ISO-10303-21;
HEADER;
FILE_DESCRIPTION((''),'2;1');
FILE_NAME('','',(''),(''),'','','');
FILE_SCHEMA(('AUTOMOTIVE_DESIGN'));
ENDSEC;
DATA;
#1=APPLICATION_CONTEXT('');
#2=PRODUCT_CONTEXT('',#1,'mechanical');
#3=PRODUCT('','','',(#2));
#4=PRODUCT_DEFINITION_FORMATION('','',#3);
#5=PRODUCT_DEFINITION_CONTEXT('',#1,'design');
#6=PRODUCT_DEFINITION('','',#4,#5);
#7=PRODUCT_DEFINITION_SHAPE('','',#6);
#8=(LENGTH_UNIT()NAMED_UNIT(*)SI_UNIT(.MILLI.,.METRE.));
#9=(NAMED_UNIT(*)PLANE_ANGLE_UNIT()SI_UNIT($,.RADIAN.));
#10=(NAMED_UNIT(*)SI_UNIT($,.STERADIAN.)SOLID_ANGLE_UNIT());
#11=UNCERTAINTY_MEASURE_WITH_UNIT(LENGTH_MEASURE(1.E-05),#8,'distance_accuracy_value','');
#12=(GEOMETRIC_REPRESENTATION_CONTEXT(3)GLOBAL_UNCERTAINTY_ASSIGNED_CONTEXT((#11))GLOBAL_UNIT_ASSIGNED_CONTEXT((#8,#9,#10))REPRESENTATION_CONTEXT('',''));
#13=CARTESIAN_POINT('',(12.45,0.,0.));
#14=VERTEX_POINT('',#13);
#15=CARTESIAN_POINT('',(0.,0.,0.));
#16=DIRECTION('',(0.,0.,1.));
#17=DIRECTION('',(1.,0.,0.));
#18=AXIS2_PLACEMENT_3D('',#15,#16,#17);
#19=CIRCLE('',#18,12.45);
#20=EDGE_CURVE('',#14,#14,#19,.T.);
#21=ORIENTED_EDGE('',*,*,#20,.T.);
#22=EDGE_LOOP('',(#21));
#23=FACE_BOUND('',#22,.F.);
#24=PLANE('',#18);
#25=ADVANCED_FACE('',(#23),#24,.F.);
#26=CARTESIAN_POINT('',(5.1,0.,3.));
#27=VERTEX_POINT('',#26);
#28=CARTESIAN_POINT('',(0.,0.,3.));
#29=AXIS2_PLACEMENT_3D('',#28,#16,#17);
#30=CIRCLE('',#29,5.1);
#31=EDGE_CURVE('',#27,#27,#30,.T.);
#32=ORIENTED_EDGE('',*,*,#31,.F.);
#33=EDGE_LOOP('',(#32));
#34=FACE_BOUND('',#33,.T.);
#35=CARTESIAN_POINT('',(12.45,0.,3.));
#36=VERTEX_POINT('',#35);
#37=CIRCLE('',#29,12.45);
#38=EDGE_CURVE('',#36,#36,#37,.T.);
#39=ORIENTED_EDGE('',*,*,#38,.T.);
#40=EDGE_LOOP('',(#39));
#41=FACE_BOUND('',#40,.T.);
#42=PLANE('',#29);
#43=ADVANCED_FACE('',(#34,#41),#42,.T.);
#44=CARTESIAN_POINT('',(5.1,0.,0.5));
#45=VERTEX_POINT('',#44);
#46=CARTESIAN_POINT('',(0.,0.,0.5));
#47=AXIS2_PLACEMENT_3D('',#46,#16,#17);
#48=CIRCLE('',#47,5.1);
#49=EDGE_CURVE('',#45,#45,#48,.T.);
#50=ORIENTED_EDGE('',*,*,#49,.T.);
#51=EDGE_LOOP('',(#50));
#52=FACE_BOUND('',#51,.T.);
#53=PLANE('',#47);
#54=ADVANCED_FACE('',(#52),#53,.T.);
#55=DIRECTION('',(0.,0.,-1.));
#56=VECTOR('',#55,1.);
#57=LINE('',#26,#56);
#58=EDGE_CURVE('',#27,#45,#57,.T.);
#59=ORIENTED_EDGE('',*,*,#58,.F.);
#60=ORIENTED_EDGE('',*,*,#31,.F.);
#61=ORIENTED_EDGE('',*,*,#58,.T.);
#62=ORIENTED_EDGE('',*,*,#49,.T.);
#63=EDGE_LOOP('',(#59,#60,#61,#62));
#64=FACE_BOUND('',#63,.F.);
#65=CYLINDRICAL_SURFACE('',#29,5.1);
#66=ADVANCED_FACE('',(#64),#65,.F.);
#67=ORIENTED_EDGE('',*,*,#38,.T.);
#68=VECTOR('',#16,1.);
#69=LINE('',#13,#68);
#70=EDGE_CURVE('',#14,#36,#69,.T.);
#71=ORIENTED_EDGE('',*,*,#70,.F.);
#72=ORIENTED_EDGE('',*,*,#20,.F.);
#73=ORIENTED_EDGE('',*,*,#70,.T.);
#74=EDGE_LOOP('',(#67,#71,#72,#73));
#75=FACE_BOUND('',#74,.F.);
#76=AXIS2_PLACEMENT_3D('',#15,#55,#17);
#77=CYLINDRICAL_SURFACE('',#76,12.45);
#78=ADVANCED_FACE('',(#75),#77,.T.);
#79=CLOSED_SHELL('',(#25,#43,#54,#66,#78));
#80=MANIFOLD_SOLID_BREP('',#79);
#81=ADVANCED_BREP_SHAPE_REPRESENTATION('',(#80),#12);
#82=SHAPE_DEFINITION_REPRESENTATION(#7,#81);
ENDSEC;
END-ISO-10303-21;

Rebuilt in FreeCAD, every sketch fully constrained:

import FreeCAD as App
import Part
import Sketcher
from FreeCAD import Vector
Q = App.Units.Quantity

doc = App.newDocument("Part")
body = doc.addObject("PartDesign::Body", "Body")

# Sketch on XY plane
sketch1 = body.newObject("Sketcher::SketchObject", "Sketch")
sketch1.AttachmentSupport = (doc.getObject("XY_Plane"), [""])
sketch1.MapMode = "FlatFace"
sketch1.addGeometry(Part.Circle(Vector(0, 0, 0), Vector(0, 0, 1), 12), False)
sketch1.addConstraint([
    Sketcher.Constraint("Coincident", 0, 3, -1, 1),
    Sketcher.Constraint("Diameter", 0, Q("24.9 mm")),
])
pad1 = body.newObject("PartDesign::Pad", "Pad")
pad1.Profile = sketch1
pad1.Length = 3

# Sketch on XY plane
sketch2 = body.newObject("Sketcher::SketchObject", "Sketch001")
sketch2.AttachmentSupport = (doc.getObject("XY_Plane"), [""])
sketch2.MapMode = "FlatFace"
sketch2.AttachmentOffset = App.Placement(Vector(0, 0, 3), App.Rotation())
sketch2.addGeometry(Part.Circle(Vector(0, 0, 0), Vector(0, 0, 1), 5), False)
sketch2.addConstraint([
    Sketcher.Constraint("Coincident", 0, 3, -1, 1),
    Sketcher.Constraint("Diameter", 0, Q("10.2 mm")),
])
pocket1 = body.newObject("PartDesign::Pocket", "Pocket")
pocket1.Profile = sketch2
pocket1.Length = 2.5

doc.recompute()
